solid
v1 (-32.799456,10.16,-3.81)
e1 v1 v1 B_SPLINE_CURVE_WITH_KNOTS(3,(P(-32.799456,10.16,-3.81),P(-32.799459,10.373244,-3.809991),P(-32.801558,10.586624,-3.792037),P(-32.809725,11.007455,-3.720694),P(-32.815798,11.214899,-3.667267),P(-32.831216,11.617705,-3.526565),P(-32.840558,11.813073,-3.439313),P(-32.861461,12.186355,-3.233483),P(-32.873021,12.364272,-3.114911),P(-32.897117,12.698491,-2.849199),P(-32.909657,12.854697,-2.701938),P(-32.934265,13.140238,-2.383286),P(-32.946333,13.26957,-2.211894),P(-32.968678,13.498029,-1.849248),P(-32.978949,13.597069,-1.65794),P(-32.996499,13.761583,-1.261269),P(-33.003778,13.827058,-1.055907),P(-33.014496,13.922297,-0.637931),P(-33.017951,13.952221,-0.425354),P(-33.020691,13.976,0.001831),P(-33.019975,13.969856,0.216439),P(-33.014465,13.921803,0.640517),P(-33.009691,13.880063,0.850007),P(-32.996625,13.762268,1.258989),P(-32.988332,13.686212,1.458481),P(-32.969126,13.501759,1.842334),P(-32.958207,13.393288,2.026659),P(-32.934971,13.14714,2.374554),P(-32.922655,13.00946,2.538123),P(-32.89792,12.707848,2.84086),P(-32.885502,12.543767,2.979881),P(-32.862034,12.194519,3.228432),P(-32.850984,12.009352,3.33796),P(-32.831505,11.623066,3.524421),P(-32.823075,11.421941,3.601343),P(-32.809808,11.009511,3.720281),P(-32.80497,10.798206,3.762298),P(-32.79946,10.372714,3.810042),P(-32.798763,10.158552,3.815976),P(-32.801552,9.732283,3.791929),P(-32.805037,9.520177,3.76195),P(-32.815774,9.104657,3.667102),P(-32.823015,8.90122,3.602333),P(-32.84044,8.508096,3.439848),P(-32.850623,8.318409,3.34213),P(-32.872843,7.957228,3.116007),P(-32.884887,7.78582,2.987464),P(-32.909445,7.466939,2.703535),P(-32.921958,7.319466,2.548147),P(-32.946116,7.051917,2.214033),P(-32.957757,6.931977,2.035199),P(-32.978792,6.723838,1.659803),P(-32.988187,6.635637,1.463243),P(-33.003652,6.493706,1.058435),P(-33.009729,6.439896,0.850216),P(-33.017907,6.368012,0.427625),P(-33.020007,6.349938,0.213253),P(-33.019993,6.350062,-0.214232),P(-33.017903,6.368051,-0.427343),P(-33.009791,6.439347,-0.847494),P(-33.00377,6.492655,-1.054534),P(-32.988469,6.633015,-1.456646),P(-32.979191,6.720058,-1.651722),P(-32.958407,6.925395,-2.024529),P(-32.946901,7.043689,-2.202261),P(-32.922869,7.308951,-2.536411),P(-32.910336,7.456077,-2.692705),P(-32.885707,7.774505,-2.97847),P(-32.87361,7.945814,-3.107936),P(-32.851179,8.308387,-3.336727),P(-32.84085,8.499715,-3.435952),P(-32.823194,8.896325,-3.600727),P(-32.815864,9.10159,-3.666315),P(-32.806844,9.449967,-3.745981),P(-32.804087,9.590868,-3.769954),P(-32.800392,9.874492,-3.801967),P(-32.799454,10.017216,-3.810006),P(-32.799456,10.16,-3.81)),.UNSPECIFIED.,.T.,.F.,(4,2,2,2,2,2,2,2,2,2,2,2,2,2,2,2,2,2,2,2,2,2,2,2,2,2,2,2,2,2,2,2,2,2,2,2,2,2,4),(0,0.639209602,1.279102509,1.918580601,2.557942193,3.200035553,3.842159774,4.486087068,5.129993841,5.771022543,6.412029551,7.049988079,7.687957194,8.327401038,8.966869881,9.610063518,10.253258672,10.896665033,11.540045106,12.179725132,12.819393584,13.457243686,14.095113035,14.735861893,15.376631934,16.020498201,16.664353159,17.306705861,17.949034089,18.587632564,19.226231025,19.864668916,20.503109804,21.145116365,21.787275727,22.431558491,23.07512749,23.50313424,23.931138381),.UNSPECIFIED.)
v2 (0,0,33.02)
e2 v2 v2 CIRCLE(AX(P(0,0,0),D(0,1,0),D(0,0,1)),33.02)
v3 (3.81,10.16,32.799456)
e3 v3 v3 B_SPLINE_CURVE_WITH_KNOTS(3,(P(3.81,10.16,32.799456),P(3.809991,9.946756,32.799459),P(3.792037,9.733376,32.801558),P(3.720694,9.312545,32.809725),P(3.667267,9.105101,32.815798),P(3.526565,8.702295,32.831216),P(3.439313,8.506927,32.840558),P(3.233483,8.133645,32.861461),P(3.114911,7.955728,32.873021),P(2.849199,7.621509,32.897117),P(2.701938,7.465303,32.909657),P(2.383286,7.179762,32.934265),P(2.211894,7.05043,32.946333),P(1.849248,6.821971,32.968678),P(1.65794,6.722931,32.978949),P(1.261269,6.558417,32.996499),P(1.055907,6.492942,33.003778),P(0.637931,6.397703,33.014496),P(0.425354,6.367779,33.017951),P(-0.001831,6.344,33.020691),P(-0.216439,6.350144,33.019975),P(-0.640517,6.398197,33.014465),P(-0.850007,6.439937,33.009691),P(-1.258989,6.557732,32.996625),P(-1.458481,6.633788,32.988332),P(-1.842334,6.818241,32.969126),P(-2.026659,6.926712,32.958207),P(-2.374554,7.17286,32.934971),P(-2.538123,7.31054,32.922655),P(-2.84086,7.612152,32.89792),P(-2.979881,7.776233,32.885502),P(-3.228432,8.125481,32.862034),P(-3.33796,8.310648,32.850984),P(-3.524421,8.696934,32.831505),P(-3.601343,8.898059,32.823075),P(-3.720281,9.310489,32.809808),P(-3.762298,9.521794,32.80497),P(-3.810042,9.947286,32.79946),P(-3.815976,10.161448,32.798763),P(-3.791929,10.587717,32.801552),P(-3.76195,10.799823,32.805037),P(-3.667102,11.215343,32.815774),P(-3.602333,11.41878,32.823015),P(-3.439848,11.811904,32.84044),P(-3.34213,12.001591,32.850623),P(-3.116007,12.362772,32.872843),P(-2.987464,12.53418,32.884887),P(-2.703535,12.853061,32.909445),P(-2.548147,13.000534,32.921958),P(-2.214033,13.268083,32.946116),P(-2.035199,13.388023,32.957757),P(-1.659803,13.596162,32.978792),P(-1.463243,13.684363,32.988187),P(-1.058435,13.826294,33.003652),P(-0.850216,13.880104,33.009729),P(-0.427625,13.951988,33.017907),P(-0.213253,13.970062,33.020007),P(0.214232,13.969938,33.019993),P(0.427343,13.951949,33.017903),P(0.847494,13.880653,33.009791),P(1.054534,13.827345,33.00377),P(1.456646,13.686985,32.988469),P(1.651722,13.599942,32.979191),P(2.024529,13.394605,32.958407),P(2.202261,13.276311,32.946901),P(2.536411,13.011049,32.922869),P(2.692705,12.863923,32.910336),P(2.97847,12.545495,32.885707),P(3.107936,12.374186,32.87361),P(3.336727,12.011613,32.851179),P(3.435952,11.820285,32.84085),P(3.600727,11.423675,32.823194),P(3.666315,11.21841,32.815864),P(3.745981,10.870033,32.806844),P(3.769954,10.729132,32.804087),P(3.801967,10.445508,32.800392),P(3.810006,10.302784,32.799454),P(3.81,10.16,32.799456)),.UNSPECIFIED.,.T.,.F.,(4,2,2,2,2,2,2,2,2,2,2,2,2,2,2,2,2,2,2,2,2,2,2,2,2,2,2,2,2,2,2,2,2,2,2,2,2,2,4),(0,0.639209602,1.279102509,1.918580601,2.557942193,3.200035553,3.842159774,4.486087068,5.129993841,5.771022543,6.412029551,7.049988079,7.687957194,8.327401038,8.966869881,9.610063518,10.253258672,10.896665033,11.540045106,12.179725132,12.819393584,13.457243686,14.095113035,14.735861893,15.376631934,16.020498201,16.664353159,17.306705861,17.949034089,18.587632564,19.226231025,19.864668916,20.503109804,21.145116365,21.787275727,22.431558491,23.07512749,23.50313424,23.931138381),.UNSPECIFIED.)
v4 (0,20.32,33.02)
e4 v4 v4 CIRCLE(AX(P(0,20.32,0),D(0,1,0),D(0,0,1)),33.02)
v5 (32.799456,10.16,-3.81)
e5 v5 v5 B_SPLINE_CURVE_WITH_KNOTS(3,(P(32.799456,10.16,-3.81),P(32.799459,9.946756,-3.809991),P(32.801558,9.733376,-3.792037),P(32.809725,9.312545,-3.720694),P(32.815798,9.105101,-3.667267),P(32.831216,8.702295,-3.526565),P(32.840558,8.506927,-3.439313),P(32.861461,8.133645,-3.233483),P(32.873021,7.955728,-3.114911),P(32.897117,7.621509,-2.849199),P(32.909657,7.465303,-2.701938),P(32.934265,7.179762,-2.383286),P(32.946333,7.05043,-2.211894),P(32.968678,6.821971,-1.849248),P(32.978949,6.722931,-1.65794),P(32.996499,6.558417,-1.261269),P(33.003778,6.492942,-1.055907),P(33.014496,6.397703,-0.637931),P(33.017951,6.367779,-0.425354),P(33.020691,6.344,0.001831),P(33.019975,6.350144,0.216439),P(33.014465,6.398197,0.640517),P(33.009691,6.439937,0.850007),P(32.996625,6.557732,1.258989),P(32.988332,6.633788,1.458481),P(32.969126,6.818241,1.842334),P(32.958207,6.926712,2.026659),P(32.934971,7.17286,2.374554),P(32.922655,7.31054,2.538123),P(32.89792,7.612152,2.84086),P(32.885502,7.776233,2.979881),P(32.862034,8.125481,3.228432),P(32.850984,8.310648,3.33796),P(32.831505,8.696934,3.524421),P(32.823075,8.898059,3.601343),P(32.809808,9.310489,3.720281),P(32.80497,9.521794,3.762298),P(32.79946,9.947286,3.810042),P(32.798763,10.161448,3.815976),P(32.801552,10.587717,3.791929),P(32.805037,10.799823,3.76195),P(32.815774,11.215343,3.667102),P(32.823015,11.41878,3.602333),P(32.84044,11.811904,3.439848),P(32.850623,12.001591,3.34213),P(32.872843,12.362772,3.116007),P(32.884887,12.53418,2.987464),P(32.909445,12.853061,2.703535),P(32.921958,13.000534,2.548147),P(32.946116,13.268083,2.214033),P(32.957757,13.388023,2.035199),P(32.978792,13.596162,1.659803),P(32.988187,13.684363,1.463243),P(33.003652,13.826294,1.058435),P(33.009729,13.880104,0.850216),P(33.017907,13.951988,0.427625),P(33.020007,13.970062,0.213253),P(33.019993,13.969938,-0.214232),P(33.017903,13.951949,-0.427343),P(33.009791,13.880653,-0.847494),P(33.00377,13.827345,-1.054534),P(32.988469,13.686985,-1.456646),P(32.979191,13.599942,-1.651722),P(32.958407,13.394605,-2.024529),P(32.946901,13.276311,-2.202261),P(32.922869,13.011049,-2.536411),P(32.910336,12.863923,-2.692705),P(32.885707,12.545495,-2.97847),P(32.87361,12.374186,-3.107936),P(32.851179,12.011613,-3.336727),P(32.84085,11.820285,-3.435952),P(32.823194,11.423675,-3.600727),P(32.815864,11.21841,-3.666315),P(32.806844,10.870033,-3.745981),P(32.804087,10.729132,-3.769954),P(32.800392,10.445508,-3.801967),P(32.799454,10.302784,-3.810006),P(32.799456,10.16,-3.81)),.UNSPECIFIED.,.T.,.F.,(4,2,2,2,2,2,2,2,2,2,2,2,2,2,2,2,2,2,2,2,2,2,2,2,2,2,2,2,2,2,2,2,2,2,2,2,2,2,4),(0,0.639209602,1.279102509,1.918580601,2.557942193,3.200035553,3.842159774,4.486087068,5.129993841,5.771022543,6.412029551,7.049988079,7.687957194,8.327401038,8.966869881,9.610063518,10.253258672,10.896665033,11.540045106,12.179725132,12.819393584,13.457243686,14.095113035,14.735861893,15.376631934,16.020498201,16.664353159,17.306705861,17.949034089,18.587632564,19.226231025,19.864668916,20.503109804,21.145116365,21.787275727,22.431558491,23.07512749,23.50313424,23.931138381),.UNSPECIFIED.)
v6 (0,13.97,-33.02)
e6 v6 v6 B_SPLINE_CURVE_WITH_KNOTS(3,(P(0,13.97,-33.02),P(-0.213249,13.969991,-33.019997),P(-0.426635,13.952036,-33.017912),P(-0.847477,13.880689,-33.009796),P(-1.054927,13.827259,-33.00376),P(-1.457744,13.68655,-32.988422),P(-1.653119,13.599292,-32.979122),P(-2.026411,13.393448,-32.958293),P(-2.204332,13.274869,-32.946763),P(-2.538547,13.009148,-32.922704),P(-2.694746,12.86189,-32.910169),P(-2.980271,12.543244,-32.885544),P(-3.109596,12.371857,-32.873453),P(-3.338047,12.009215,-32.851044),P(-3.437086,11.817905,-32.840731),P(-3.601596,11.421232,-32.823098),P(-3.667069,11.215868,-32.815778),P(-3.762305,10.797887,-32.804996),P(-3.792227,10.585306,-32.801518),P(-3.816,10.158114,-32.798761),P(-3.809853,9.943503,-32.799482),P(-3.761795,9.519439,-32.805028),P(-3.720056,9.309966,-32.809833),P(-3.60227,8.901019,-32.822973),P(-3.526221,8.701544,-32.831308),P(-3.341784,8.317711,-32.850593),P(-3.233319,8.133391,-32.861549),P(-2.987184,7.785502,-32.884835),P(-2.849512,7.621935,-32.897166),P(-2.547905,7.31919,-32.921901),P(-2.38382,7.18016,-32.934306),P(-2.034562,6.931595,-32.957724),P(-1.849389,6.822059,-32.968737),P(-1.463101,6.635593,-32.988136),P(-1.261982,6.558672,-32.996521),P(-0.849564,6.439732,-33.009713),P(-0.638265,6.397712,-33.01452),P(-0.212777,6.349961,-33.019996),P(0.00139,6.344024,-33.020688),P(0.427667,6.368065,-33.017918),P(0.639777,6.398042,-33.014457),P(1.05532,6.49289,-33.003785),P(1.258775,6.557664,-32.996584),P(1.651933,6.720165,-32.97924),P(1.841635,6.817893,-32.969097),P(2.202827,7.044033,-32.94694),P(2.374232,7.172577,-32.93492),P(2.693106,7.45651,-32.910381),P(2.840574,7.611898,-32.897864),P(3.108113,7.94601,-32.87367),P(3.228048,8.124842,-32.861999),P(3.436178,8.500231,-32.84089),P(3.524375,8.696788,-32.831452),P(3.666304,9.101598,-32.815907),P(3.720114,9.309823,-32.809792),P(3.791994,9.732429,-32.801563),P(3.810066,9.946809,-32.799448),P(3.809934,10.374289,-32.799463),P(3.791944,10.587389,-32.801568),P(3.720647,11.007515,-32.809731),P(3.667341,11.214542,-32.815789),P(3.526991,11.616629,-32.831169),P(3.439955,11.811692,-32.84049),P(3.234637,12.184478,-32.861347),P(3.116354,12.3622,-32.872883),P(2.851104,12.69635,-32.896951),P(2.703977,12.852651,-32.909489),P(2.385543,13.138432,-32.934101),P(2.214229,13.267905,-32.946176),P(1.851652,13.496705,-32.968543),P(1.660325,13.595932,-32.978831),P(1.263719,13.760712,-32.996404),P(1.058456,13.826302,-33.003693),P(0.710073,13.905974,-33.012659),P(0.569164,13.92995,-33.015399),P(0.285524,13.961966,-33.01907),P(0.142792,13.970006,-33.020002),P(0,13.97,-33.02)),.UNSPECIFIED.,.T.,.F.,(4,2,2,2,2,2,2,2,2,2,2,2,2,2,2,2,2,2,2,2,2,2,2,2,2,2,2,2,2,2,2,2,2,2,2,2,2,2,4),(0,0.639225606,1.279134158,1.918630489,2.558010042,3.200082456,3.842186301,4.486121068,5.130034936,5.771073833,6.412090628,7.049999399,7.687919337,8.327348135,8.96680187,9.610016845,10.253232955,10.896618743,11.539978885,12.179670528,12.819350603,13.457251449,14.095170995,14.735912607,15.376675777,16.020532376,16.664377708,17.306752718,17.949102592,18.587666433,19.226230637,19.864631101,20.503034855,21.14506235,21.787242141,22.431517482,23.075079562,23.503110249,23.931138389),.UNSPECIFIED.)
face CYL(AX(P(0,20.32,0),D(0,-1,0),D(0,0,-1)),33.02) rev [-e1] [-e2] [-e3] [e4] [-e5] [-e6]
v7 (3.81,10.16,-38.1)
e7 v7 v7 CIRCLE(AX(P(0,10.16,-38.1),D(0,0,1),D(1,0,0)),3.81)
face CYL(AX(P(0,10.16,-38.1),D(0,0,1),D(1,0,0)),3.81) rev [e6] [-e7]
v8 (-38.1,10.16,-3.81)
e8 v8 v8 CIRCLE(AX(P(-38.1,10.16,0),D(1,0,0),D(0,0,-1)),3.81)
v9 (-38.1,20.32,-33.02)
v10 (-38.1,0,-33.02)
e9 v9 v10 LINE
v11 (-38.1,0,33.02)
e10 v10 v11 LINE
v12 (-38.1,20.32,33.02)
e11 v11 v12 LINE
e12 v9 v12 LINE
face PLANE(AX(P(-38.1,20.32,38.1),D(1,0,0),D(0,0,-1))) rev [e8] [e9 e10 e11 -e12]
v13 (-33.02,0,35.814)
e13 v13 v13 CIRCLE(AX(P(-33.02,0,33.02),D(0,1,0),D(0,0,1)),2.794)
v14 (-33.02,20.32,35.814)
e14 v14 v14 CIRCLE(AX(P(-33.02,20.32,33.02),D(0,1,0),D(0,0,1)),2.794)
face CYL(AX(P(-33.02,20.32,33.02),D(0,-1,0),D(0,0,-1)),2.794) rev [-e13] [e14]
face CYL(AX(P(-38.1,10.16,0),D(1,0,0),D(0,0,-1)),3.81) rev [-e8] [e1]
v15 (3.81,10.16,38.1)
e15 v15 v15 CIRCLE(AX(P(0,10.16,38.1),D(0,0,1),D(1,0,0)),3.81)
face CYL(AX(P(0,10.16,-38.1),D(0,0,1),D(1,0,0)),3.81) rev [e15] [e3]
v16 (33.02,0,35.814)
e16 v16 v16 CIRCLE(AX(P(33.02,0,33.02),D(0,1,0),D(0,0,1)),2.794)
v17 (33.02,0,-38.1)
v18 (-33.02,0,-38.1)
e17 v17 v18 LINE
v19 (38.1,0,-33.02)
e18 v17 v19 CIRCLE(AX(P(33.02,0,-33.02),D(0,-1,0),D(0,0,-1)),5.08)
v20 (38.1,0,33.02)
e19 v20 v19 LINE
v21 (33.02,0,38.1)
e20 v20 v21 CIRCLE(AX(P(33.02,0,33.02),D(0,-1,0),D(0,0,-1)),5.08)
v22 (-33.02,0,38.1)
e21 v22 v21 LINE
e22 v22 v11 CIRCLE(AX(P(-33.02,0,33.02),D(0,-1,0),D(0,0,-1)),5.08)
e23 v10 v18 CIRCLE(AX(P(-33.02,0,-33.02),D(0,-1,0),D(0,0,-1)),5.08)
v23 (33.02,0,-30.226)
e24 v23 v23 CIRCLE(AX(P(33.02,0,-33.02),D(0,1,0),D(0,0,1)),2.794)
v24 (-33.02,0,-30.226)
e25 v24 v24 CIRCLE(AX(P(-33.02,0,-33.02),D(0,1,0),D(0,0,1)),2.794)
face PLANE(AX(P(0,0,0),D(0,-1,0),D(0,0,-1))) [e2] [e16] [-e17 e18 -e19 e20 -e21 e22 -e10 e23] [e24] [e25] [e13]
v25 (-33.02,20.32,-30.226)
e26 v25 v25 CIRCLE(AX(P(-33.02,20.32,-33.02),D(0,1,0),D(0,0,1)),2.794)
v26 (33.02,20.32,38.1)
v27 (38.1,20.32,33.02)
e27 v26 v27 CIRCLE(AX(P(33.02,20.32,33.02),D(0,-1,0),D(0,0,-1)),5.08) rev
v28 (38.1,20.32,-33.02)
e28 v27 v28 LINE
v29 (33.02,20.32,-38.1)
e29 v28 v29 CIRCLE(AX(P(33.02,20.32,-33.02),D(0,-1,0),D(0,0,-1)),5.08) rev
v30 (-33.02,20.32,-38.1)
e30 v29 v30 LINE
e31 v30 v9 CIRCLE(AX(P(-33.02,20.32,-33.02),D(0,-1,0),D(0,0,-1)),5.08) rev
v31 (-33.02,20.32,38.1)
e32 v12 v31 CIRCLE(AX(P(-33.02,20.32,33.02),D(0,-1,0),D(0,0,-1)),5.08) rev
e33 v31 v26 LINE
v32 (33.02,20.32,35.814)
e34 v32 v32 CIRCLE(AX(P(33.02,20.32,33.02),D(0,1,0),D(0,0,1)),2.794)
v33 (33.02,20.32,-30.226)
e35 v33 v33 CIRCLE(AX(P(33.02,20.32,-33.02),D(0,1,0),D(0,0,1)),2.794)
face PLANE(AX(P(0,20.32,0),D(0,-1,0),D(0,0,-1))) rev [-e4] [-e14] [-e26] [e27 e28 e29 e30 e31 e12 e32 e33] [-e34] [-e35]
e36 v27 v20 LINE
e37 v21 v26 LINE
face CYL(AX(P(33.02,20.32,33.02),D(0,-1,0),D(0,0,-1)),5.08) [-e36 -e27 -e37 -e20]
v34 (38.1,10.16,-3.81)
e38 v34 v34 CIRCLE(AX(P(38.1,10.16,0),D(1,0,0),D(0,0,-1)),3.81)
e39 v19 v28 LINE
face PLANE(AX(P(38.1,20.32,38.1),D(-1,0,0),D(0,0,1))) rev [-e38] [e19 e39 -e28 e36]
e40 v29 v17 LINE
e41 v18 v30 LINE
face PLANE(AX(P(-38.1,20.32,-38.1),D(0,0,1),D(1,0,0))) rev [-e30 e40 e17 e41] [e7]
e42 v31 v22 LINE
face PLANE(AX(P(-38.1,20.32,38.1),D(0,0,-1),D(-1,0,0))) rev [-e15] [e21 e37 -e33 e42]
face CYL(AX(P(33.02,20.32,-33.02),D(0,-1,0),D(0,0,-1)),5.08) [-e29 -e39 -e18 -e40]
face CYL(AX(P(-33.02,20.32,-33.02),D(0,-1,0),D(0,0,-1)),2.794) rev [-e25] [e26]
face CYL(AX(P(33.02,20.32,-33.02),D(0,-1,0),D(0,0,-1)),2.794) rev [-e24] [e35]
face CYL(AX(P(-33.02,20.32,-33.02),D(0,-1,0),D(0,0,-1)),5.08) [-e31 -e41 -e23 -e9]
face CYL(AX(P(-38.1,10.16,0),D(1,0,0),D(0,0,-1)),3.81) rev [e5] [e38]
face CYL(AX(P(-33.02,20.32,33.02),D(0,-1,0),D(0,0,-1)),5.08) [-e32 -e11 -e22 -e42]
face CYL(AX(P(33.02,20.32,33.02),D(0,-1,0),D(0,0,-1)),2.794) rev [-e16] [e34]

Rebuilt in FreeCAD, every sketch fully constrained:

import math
import FreeCAD as App
import Part
import Sketcher
from FreeCAD import Vector
Q = App.Units.Quantity


def edges_at(feature, points):
    """Names of the edges that pass closest to the given points."""
    edges = feature.Shape.Edges
    near = lambda p: min(range(len(edges)), key=lambda i: edges[i].distToShape(Part.Vertex(*p))[0])
    return sorted({f"Edge{near(p) + 1}" for p in points})

doc = App.newDocument("Part")
body = doc.addObject("PartDesign::Body", "Body")

# Sketch on XZ plane
sketch1 = body.newObject("Sketcher::SketchObject", "Sketch")
sketch1.AttachmentSupport = (doc.getObject("XZ_Plane"), [""])
sketch1.MapMode = "FlatFace"
sketch1.addGeometry([
    Part.LineSegment(Vector(-38.1, -38.1, 0), Vector(-38.1, 38.1, 0)),  # 0
    Part.LineSegment(Vector(-38.1, 38.1, 0), Vector(38.1, 38.1, 0)),  # 1
    Part.LineSegment(Vector(38.1, 38.1, 0), Vector(38.1, -38.1, 0)),  # 2
    Part.LineSegment(Vector(38.1, -38.1, 0), Vector(-38.1, -38.1, 0)),  # 3
    Part.Circle(Vector(-33, 33, 0), Vector(0, 0, 1), 2.8),  # 4
    Part.Circle(Vector(33, 33, 0), Vector(0, 0, 1), 2.8),  # 5
    Part.Circle(Vector(0, 0, 0), Vector(0, 0, 1), 33),  # 6
    Part.Circle(Vector(-33, -33, 0), Vector(0, 0, 1), 2.8),  # 7
    Part.Circle(Vector(33, -33, 0), Vector(0, 0, 1), 2.8),  # 8
], False)
sketch1.addConstraint([
    Sketcher.Constraint("Coincident", 0, 2, 1, 1),
    Sketcher.Constraint("Coincident", 1, 2, 2, 1),
    Sketcher.Constraint("Coincident", 2, 2, 3, 1),
    Sketcher.Constraint("Coincident", 3, 2, 0, 1),
    Sketcher.Constraint("Vertical", 0),
    Sketcher.Constraint("Horizontal", 1),
    Sketcher.Constraint("Vertical", 2),
    Sketcher.Constraint("Horizontal", 3),
    Sketcher.Constraint("Coincident", 6, 3, -1, 1),
    Sketcher.Constraint("Equal", 4, 5),
    Sketcher.Constraint("Equal", 5, 7),
    Sketcher.Constraint("Equal", 7, 8),
    Sketcher.Constraint("Symmetric", 5, 3, 7, 3, -1, 1),
    Sketcher.Constraint("Symmetric", 4, 3, 8, 3, -1, 1),
    Sketcher.Constraint("Symmetric", 0, 2, 2, 2, -1, 1),
    Sketcher.Constraint("Symmetric", 4, 3, 5, 3, -2),
    Sketcher.Constraint("Equal", 3, 0),
    Sketcher.Constraint("Diameter", 6, Q("2.6 in")),
    Sketcher.Constraint("Diameter", 4, Q("0.22 in")),
    Sketcher.Constraint("DistanceX", 1, 1, 1, 2, Q("3 in")),
    Sketcher.Constraint("DistanceX", 4, 3, -1, 1, Q("1.3 in")),
    Sketcher.Constraint("DistanceY", -1, 1, 4, 3, Q("1.3 in")),
])
pad1 = body.newObject("PartDesign::Pad", "Pad")
pad1.Profile = sketch1
pad1.Length = Q("0.8 in")
pad1.Reversed = True
doc.recompute()

fillet = body.newObject("PartDesign::Fillet", "Fillet")
fillet.Base = (pad1, edges_at(pad1, [
    (38.1, 10.16, 38.1),
    (-38.1, 10.16, 38.1),
    (-38.1, 10.16, -38.1),
    (38.1, 10.16, -38.1),
]))
fillet.Radius = Q("0.2 in")

# Sketch on XY plane
sketch2 = body.newObject("Sketcher::SketchObject", "Sketch001")
sketch2.AttachmentSupport = (doc.getObject("XY_Plane"), [""])
sketch2.MapMode = "FlatFace"
sketch2.AttachmentOffset = App.Placement(Vector(0, 0, 1.5 * 25.4), App.Rotation())
sketch2.addGeometry([
    Part.ArcOfCircle(Part.Circle(Vector(0, 10.2, 0), Vector(0, 0, 1), 3.8), math.radians(0), math.radians(90)),
    Part.ArcOfCircle(Part.Circle(Vector(0, 10.2, 0), Vector(0, 0, 1), 3.8), math.radians(90), math.radians(270)),
    Part.ArcOfCircle(Part.Circle(Vector(0, 10.2, 0), Vector(0, 0, 1), 3.8), math.radians(-90), math.radians(0)),
], False)
sketch2.addConstraint([
    Sketcher.Constraint("Tangent", 0, 2, 1, 1),
    Sketcher.Constraint("Tangent", 1, 2, 2, 1),
    Sketcher.Constraint("Tangent", 2, 2, 0, 1),
    Sketcher.Constraint("PointOnObject", 0, 3, -2),
    Sketcher.Constraint("PointOnObject", 0, 2, -2),
    Sketcher.Constraint("PointOnObject", 1, 2, -2),
    Sketcher.Constraint("Horizontal", 1, 3, 2, 2),
    Sketcher.Constraint("Radius", 0, Q("0.15 in")),
    Sketcher.Constraint("DistanceY", -1, 1, 0, 3, Q("0.4 in")),
])
pocket1 = body.newObject("PartDesign::Pocket", "Pocket")
pocket1.Profile = sketch2
pocket1.Type = "ThroughAll"

# Sketch on YZ plane
sketch3 = body.newObject("Sketcher::SketchObject", "Sketch002")
sketch3.AttachmentSupport = (doc.getObject("YZ_Plane"), [""])
sketch3.MapMode = "FlatFace"
sketch3.AttachmentOffset = App.Placement(Vector(0, 0, 1.5 * 25.4), App.Rotation())
sketch3.addGeometry([
    Part.ArcOfCircle(Part.Circle(Vector(10.2, 0, 0), Vector(0, 0, 1), 3.8), math.radians(0), math.radians(180)),
    Part.ArcOfCircle(Part.Circle(Vector(10.2, 0, 0), Vector(0, 0, 1), 3.8), math.radians(-180), math.radians(-90)),
    Part.ArcOfCircle(Part.Circle(Vector(10.2, 0, 0), Vector(0, 0, 1), 3.8), math.radians(-90), math.radians(0)),
], False)
sketch3.addConstraint([
    Sketcher.Constraint("Tangent", 0, 2, 1, 1),
    Sketcher.Constraint("Tangent", 1, 2, 2, 1),
    Sketcher.Constraint("Tangent", 2, 2, 0, 1),
    Sketcher.Constraint("PointOnObject", 0, 3, -1),
    Sketcher.Constraint("PointOnObject", 0, 2, -1),
    Sketcher.Constraint("PointOnObject", 2, 2, -1),
    Sketcher.Constraint("Vertical", 2, 3, 1, 2),
    Sketcher.Constraint("Radius", 0, Q("0.15 in")),
    Sketcher.Constraint("DistanceX", -1, 1, 0, 3, Q("0.4 in")),
])
pocket2 = body.newObject("PartDesign::Pocket", "Pocket001")
pocket2.Profile = sketch3
pocket2.Type = "ThroughAll"

doc.recompute()
